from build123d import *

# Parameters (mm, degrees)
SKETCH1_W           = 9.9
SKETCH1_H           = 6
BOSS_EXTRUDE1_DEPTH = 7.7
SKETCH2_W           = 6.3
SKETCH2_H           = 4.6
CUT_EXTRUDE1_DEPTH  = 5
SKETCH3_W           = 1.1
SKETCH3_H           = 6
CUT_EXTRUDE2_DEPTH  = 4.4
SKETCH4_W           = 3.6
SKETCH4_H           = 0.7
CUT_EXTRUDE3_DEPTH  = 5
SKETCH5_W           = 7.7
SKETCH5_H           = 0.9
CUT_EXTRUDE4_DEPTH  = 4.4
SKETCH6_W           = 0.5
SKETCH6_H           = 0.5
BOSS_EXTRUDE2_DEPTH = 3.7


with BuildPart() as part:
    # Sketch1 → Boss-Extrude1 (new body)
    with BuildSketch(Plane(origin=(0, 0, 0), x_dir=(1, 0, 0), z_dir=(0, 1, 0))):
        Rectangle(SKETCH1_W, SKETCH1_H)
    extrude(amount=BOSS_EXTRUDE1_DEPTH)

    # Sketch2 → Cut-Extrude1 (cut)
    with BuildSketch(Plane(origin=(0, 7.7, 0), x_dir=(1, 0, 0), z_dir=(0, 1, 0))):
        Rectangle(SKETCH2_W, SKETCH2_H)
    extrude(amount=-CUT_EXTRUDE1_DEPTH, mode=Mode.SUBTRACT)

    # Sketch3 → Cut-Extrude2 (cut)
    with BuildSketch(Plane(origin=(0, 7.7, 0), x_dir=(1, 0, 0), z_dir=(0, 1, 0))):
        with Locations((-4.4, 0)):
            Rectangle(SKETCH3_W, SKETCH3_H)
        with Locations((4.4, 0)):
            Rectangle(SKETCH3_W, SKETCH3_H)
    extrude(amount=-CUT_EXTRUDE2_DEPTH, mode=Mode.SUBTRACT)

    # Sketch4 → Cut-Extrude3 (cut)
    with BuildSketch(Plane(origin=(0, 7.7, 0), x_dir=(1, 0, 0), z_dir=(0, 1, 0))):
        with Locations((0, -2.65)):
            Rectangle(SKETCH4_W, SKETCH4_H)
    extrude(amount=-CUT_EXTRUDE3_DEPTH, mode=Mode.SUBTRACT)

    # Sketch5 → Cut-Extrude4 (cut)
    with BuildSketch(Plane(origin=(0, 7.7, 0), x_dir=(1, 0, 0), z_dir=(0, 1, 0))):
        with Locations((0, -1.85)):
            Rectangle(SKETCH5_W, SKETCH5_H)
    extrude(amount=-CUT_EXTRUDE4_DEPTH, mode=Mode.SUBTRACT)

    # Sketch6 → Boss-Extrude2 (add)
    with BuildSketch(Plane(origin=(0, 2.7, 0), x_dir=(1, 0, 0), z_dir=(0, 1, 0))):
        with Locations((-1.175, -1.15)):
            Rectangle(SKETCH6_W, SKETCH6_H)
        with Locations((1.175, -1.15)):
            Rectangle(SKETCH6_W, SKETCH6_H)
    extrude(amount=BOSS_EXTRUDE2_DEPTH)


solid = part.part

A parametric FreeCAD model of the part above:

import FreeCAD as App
import Part
import Sketcher

doc = App.newDocument("Part")
body = doc.addObject("PartDesign::Body", "Body")

sketch1 = body.newObject("Sketcher::SketchObject", "Sketch")
sketch1.AttachmentSupport = (doc.getObject("XZ_Plane"), [""])
sketch1.MapMode = "FlatFace"
sketch1.addGeometry([
    Part.LineSegment(App.Vector(-5, -3, 0), App.Vector(-5, 3, 0)),
    Part.LineSegment(App.Vector(-5, 3, 0), App.Vector(5, 3, 0)),
    Part.LineSegment(App.Vector(5, 3, 0), App.Vector(5, -3, 0)),
    Part.LineSegment(App.Vector(5, -3, 0), App.Vector(-5, -3, 0)),
], False)
sketch1.addConstraint([
    Sketcher.Constraint("Coincident", 0, 2, 1, 1),
    Sketcher.Constraint("Coincident", 1, 2, 2, 1),
    Sketcher.Constraint("Coincident", 2, 2, 3, 1),
    Sketcher.Constraint("Coincident", 3, 2, 0, 1),
    Sketcher.Constraint("Vertical", 0),
    Sketcher.Constraint("Horizontal", 1),
    Sketcher.Constraint("Vertical", 2),
    Sketcher.Constraint("Horizontal", 3),
    Sketcher.Constraint("Symmetric", 0, 2, 2, 2, -1, 1),
    Sketcher.Constraint("DistanceY", 0, 1, 0, 2, 6.0),
    Sketcher.Constraint("DistanceX", 1, 1, 1, 2, 9.9),
])
pad1 = body.newObject("PartDesign::Pad", "Pad")
pad1.Profile = sketch1
pad1.Length = 7.7
pad1.Reversed = True

sketch2 = body.newObject("Sketcher::SketchObject", "Sketch001")
sketch2.AttachmentSupport = (doc.getObject("XZ_Plane"), [""])
sketch2.MapMode = "FlatFace"
sketch2.AttachmentOffset = App.Placement(App.Vector(0, 0, -7.7), App.Rotation())
sketch2.addGeometry([
    Part.LineSegment(App.Vector(-3.1, -2.3, 0), App.Vector(-3.1, 2.3, 0)),
    Part.LineSegment(App.Vector(-3.1, 2.3, 0), App.Vector(3.1, 2.3, 0)),
    Part.LineSegment(App.Vector(3.1, 2.3, 0), App.Vector(3.1, -2.3, 0)),
    Part.LineSegment(App.Vector(3.1, -2.3, 0), App.Vector(-3.1, -2.3, 0)),
], False)
sketch2.addConstraint([
    Sketcher.Constraint("Coincident", 0, 2, 1, 1),
    Sketcher.Constraint("Coincident", 1, 2, 2, 1),
    Sketcher.Constraint("Coincident", 2, 2, 3, 1),
    Sketcher.Constraint("Coincident", 3, 2, 0, 1),
    Sketcher.Constraint("Vertical", 0),
    Sketcher.Constraint("Horizontal", 1),
    Sketcher.Constraint("Vertical", 2),
    Sketcher.Constraint("Horizontal", 3),
    Sketcher.Constraint("Symmetric", 0, 2, 2, 2, -1, 1),
    Sketcher.Constraint("DistanceX", 1, 1, 1, 2, 6.3),
    Sketcher.Constraint("DistanceY", 0, 1, 0, 2, 4.6),
])
pocket1 = body.newObject("PartDesign::Pocket", "Pocket")
pocket1.Profile = sketch2
pocket1.Length = 5
pocket1.Reversed = True

sketch3 = body.newObject("Sketcher::SketchObject", "Sketch002")
sketch3.AttachmentSupport = (doc.getObject("XZ_Plane"), [""])
sketch3.MapMode = "FlatFace"
sketch3.AttachmentOffset = App.Placement(App.Vector(0, 0, -7.7), App.Rotation())
sketch3.addGeometry([
    Part.LineSegment(App.Vector(-5, -3, 0), App.Vector(-5, 3, 0)),
    Part.LineSegment(App.Vector(-5, 3, 0), App.Vector(-3.9, 3, 0)),
    Part.LineSegment(App.Vector(-3.9, 3, 0), App.Vector(-3.9, -3, 0)),
    Part.LineSegment(App.Vector(-3.9, -3, 0), App.Vector(-5, -3, 0)),
    Part.LineSegment(App.Vector(3.9, -3, 0), App.Vector(3.9, 3, 0)),
    Part.LineSegment(App.Vector(3.9, 3, 0), App.Vector(5, 3, 0)),
    Part.LineSegment(App.Vector(5, 3, 0), App.Vector(5, -3, 0)),
    Part.LineSegment(App.Vector(5, -3, 0), App.Vector(3.9, -3, 0)),
], False)
sketch3.addConstraint([
    Sketcher.Constraint("Coincident", 0, 2, 1, 1),
    Sketcher.Constraint("Coincident", 1, 2, 2, 1),
    Sketcher.Constraint("Coincident", 2, 2, 3, 1),
    Sketcher.Constraint("Coincident", 3, 2, 0, 1),
    Sketcher.Constraint("Coincident", 4, 2, 5, 1),
    Sketcher.Constraint("Coincident", 5, 2, 6, 1),
    Sketcher.Constraint("Coincident", 6, 2, 7, 1),
    Sketcher.Constraint("Coincident", 7, 2, 4, 1),
    Sketcher.Constraint("Vertical", 0),
    Sketcher.Constraint("Horizontal", 1),
    Sketcher.Constraint("Vertical", 2),
    Sketcher.Constraint("Horizontal", 3),
    Sketcher.Constraint("Vertical", 4),
    Sketcher.Constraint("Horizontal", 5),
    Sketcher.Constraint("Vertical", 6),
    Sketcher.Constraint("Horizontal", 7),
    Sketcher.Constraint("Symmetric", 2, 2, 4, 2, -1, 1),
    Sketcher.Constraint("Symmetric", 0, 2, 6, 2, -1, 1),
    Sketcher.Constraint("Horizontal", 1, 2, 4, 2),
    Sketcher.Constraint("DistanceY", 0, 1, 0, 2, 6.0),
    Sketcher.Constraint("DistanceX", 1, 1, 1, 2, 1.1),
    Sketcher.Constraint("DistanceX", 1, 2, 4, 2, 7.7),
])
pocket2 = body.newObject("PartDesign::Pocket", "Pocket001")
pocket2.Profile = sketch3
pocket2.Length = 4.4
pocket2.Reversed = True

sketch4 = body.newObject("Sketcher::SketchObject", "Sketch003")
sketch4.AttachmentSupport = (doc.getObject("XZ_Plane"), [""])
sketch4.MapMode = "FlatFace"
sketch4.AttachmentOffset = App.Placement(App.Vector(0, 0, -7.7), App.Rotation())
sketch4.addGeometry([
    Part.LineSegment(App.Vector(-1.8, 2.3, 0), App.Vector(-1.8, 3, 0)),
    Part.LineSegment(App.Vector(-1.8, 3, 0), App.Vector(1.8, 3, 0)),
    Part.LineSegment(App.Vector(1.8, 3, 0), App.Vector(1.8, 2.3, 0)),
    Part.LineSegment(App.Vector(1.8, 2.3, 0), App.Vector(-1.8, 2.3, 0)),
], False)
sketch4.addConstraint([
    Sketcher.Constraint("Coincident", 0, 2, 1, 1),
    Sketcher.Constraint("Coincident", 1, 2, 2, 1),
    Sketcher.Constraint("Coincident", 2, 2, 3, 1),
    Sketcher.Constraint("Coincident", 3, 2, 0, 1),
    Sketcher.Constraint("Vertical", 0),
    Sketcher.Constraint("Horizontal", 1),
    Sketcher.Constraint("Vertical", 2),
    Sketcher.Constraint("Horizontal", 3),
    Sketcher.Constraint("DistanceX", 1, 1, 1, 2, 3.6),
    Sketcher.Constraint("DistanceY", 0, 1, 0, 2, 0.7),
    Sketcher.Constraint("DistanceY", -1, 1, 0, 2, 3.0),
    Sketcher.Constraint("DistanceX", 0, 2, -1, 1, 1.8),
])
pocket3 = body.newObject("PartDesign::Pocket", "Pocket002")
pocket3.Profile = sketch4
pocket3.Length = 5
pocket3.Reversed = True

sketch5 = body.newObject("Sketcher::SketchObject", "Sketch004")
sketch5.AttachmentSupport = (doc.getObject("XZ_Plane"), [""])
sketch5.MapMode = "FlatFace"
sketch5.AttachmentOffset = App.Placement(App.Vector(0, 0, -7.7), App.Rotation())
sketch5.addGeometry([
    Part.LineSegment(App.Vector(-3.9, 1.4, 0), App.Vector(-3.9, 2.3, 0)),
    Part.LineSegment(App.Vector(-3.9, 2.3, 0), App.Vector(3.9, 2.3, 0)),
    Part.LineSegment(App.Vector(3.9, 2.3, 0), App.Vector(3.9, 1.4, 0)),
    Part.LineSegment(App.Vector(3.9, 1.4, 0), App.Vector(-3.9, 1.4, 0)),
], False)
sketch5.addConstraint([
    Sketcher.Constraint("Coincident", 0, 2, 1, 1),
    Sketcher.Constraint("Coincident", 1, 2, 2, 1),
    Sketcher.Constraint("Coincident", 2, 2, 3, 1),
    Sketcher.Constraint("Coincident", 3, 2, 0, 1),
    Sketcher.Constraint("Vertical", 0),
    Sketcher.Constraint("Horizontal", 1),
    Sketcher.Constraint("Vertical", 2),
    Sketcher.Constraint("Horizontal", 3),
    Sketcher.Constraint("DistanceX", 1, 1, 1, 2, 7.7),
    Sketcher.Constraint("DistanceY", 0, 1, 0, 2, 0.9),
    Sketcher.Constraint("DistanceY", -1, 1, 0, 2, 2.3),
    Sketcher.Constraint("DistanceX", 0, 2, -1, 1, 3.85),
])
pocket4 = body.newObject("PartDesign::Pocket", "Pocket003")
pocket4.Profile = sketch5
pocket4.Length = 4.4
pocket4.Reversed = True

sketch6 = body.newObject("Sketcher::SketchObject", "Sketch005")
sketch6.AttachmentSupport = (doc.getObject("XZ_Plane"), [""])
sketch6.MapMode = "FlatFace"
sketch6.AttachmentOffset = App.Placement(App.Vector(0, 0, -2.7), App.Rotation())
sketch6.addGeometry([
    Part.LineSegment(App.Vector(-1.43, 0.9, 0), App.Vector(-1.43, 1.4, 0)),
    Part.LineSegment(App.Vector(-1.43, 1.4, 0), App.Vector(-0.93, 1.4, 0)),
    Part.LineSegment(App.Vector(-0.93, 1.4, 0), App.Vector(-0.93, 0.9, 0)),
    Part.LineSegment(App.Vector(-0.93, 0.9, 0), App.Vector(-1.43, 0.9, 0)),
    Part.LineSegment(App.Vector(0.93, 0.9, 0), App.Vector(0.93, 1.4, 0)),
    Part.LineSegment(App.Vector(0.93, 1.4, 0), App.Vector(1.43, 1.4, 0)),
    Part.LineSegment(App.Vector(1.43, 1.4, 0), App.Vector(1.43, 0.9, 0)),
    Part.LineSegment(App.Vector(1.43, 0.9, 0), App.Vector(0.93, 0.9, 0)),
], False)
sketch6.addConstraint([
    Sketcher.Constraint("Coincident", 0, 2, 1, 1),
    Sketcher.Constraint("Coincident", 1, 2, 2, 1),
    Sketcher.Constraint("Coincident", 2, 2, 3, 1),
    Sketcher.Constraint("Coincident", 3, 2, 0, 1),
    Sketcher.Constraint("Coincident", 4, 2, 5, 1),
    Sketcher.Constraint("Coincident", 5, 2, 6, 1),
    Sketcher.Constraint("Coincident", 6, 2, 7, 1),
    Sketcher.Constraint("Coincident", 7, 2, 4, 1),
    Sketcher.Constraint("Vertical", 0),
    Sketcher.Constraint("Horizontal", 1),
    Sketcher.Constraint("Vertical", 2),
    Sketcher.Constraint("Horizontal", 3),
    Sketcher.Constraint("Vertical", 4),
    Sketcher.Constraint("Horizontal", 5),
    Sketcher.Constraint("Vertical", 6),
    Sketcher.Constraint("Horizontal", 7),
    Sketcher.Constraint("Symmetric", 1, 2, 4, 2, -2),
    Sketcher.Constraint("Symmetric", 3, 2, 6, 2, -2),
    Sketcher.Constraint("Equal", 7, 0),
    Sketcher.Constraint("DistanceX", 1, 1, 1, 2, 0.5),
    Sketcher.Constraint("DistanceY", -1, 1, 0, 2, 1.4),
    Sketcher.Constraint("DistanceX", 1, 2, 4, 2, 1.85),
])
pad2 = body.newObject("PartDesign::Pad", "Pad001")
pad2.Profile = sketch6
pad2.Length = 3.7
pad2.Reversed = True

doc.recompute()
